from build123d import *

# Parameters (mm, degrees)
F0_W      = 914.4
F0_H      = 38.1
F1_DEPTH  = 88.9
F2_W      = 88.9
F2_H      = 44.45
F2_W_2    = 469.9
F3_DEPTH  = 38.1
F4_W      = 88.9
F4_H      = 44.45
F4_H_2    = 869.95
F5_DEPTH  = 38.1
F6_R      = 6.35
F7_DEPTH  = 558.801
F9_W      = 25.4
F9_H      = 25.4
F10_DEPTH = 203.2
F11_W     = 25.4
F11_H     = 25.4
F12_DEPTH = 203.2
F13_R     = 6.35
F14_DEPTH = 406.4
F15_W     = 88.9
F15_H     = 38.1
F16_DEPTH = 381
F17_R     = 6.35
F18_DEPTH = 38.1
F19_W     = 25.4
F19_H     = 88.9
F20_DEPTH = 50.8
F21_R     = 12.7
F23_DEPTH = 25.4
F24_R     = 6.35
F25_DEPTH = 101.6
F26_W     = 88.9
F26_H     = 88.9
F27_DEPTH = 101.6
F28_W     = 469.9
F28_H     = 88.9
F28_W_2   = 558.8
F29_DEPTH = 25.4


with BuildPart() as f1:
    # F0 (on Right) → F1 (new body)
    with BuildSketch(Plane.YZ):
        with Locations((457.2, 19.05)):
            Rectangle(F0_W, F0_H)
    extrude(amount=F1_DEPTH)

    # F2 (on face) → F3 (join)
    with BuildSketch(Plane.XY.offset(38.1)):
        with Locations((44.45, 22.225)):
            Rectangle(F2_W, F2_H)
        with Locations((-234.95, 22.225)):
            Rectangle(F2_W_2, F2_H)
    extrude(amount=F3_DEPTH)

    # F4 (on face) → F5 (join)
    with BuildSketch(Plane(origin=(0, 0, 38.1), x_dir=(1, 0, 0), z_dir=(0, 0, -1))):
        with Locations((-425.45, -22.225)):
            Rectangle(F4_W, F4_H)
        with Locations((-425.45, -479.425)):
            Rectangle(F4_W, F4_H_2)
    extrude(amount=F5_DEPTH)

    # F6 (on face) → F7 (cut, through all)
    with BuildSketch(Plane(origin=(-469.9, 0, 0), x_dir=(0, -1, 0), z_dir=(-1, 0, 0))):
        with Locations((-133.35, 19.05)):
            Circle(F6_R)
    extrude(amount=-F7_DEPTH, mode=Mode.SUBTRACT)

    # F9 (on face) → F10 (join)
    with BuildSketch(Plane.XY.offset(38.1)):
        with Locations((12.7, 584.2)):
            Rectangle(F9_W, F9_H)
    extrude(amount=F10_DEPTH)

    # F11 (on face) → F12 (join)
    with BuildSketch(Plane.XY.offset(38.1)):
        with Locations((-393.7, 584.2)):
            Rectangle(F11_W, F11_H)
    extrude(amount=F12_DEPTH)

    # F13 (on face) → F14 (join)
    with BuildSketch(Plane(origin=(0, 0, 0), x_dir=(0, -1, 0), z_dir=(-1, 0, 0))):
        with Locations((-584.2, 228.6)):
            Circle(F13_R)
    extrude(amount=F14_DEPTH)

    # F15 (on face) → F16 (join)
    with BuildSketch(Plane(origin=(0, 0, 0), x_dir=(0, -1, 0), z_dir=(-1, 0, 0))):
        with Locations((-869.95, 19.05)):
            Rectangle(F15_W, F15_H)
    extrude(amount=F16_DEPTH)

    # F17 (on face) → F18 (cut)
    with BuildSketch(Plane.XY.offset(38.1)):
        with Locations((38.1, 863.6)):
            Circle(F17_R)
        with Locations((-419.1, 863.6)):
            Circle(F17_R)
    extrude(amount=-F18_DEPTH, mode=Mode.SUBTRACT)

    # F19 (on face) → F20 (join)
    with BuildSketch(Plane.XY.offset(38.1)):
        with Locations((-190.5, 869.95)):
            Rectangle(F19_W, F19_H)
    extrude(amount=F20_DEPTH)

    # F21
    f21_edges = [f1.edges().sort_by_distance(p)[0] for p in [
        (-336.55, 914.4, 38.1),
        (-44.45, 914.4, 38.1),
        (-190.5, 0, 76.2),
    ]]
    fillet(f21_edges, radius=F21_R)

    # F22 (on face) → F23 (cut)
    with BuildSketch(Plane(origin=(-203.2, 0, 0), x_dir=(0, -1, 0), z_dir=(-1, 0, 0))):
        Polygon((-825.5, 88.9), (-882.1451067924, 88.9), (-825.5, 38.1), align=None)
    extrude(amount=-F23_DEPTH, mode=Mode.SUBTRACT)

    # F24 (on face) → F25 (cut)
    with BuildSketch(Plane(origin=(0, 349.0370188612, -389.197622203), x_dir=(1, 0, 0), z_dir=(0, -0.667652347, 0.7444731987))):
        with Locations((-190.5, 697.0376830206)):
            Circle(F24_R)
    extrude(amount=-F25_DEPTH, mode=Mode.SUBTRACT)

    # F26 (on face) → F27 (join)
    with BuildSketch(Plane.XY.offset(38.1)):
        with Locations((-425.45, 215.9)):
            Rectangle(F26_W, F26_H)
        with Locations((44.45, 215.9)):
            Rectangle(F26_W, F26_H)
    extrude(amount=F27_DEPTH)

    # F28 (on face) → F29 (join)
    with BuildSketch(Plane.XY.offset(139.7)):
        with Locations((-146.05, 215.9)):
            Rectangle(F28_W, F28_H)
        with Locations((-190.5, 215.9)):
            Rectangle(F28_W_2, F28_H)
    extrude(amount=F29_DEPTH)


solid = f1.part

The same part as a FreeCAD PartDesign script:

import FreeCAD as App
import Part
import Sketcher
Q = App.Units.Quantity


def edges_at(feature, points):
    """Names of the edges that pass closest to the given points."""
    edges = feature.Shape.Edges
    near = lambda p: min(range(len(edges)), key=lambda i: edges[i].distToShape(Part.Vertex(*p))[0])
    return sorted({f"Edge{near(p) + 1}" for p in points})

doc = App.newDocument("Part")
body = doc.addObject("PartDesign::Body", "Body")

# Sketch on YZ plane
sketch1 = body.newObject("Sketcher::SketchObject", "Sketch")
sketch1.AttachmentSupport = (doc.getObject("YZ_Plane"), [""])
sketch1.MapMode = "FlatFace"
sketch1.addGeometry(Part.LineSegment(App.Vector(0, 38, 0), App.Vector(0, 0, 0)), False)
sketch1.addGeometry(Part.LineSegment(App.Vector(0, 0, 0), App.Vector(914, 0, 0)), False)
sketch1.addGeometry(Part.LineSegment(App.Vector(914, 0, 0), App.Vector(914, 38, 0)), False)
sketch1.addGeometry(Part.LineSegment(App.Vector(914, 38, 0), App.Vector(0, 38, 0)), False)
sketch1.addConstraint(Sketcher.Constraint("Coincident", 0, 2, 1, 1))
sketch1.addConstraint(Sketcher.Constraint("Coincident", 1, 2, 2, 1))
sketch1.addConstraint(Sketcher.Constraint("Coincident", 2, 2, 3, 1))
sketch1.addConstraint(Sketcher.Constraint("Coincident", 3, 2, 0, 1))
sketch1.addConstraint(Sketcher.Constraint("Vertical", 0))
sketch1.addConstraint(Sketcher.Constraint("Horizontal", 1))
sketch1.addConstraint(Sketcher.Constraint("Vertical", 2))
sketch1.addConstraint(Sketcher.Constraint("Horizontal", 3))
sketch1.addConstraint(Sketcher.Constraint("Coincident", 0, 2, -1, 1))
sketch1.addConstraint(Sketcher.Constraint("DistanceX", 1, 1, 1, 2, Q("36 in")))
sketch1.addConstraint(Sketcher.Constraint("DistanceY", 0, 2, 0, 1, Q("1.5 in")))
pad1 = body.newObject("PartDesign::Pad", "Pad")
pad1.Profile = sketch1
pad1.Length = Q("3.5 in")

# Sketch on XY plane
sketch2 = body.newObject("Sketcher::SketchObject", "Sketch001")
sketch2.AttachmentSupport = (doc.getObject("XY_Plane"), [""])
sketch2.MapMode = "FlatFace"
sketch2.AttachmentOffset = App.Placement(App.Vector(0, 0, 1.5 * 25.4), App.Rotation())
sketch2.addGeometry(Part.LineSegment(App.Vector(89, 0, 0), App.Vector(89, 44, 0)), False)
sketch2.addGeometry(Part.LineSegment(App.Vector(89, 44, 0), App.Vector(-470, 44, 0)), False)
sketch2.addGeometry(Part.LineSegment(App.Vector(-470, 44, 0), App.Vector(-470, 0, 0)), False)
sketch2.addGeometry(Part.LineSegment(App.Vector(-470, 0, 0), App.Vector(89, 0, 0)), False)
sketch2.addConstraint(Sketcher.Constraint("Coincident", 0, 2, 1, 1))
sketch2.addConstraint(Sketcher.Constraint("Coincident", 1, 2, 2, 1))
sketch2.addConstraint(Sketcher.Constraint("Coincident", 2, 2, 3, 1))
sketch2.addConstraint(Sketcher.Constraint("Coincident", 3, 2, 0, 1))
sketch2.addConstraint(Sketcher.Constraint("Vertical", 0))
sketch2.addConstraint(Sketcher.Constraint("Horizontal", 1))
sketch2.addConstraint(Sketcher.Constraint("Vertical", 2))
sketch2.addConstraint(Sketcher.Constraint("Horizontal", 3))
sketch2.addConstraint(Sketcher.Constraint("PointOnObject", 2, 2, -1))
sketch2.addConstraint(Sketcher.Constraint("DistanceX", 1, 2, 1, 1, Q("22 in")))
sketch2.addConstraint(Sketcher.Constraint("DistanceY", 0, 1, 0, 2, Q("1.75 in")))
sketch2.addConstraint(Sketcher.Constraint("DistanceX", -1, 1, 0, 2, Q("3.5 in")))
pad2 = body.newObject("PartDesign::Pad", "Pad001")
pad2.Profile = sketch2
pad2.Length = Q("1.5 in")

# Sketch on XY plane
sketch3 = body.newObject("Sketcher::SketchObject", "Sketch002")
sketch3.AttachmentSupport = (doc.getObject("XY_Plane"), [""])
sketch3.MapMode = "FlatFace"
sketch3.AttachmentOffset = App.Placement(App.Vector(0, 0, 1.5 * 25.4), App.Rotation())
sketch3.addGeometry(Part.LineSegment(App.Vector(-470, 0, 0), App.Vector(-470, 914, 0)), False)
sketch3.addGeometry(Part.LineSegment(App.Vector(-470, 914, 0), App.Vector(-381, 914, 0)), False)
sketch3.addGeometry(Part.LineSegment(App.Vector(-381, 914, 0), App.Vector(-381, 0, 0)), False)
sketch3.addGeometry(Part.LineSegment(App.Vector(-381, 0, 0), App.Vector(-470, 0, 0)), False)
sketch3.addConstraint(Sketcher.Constraint("Coincident", 0, 2, 1, 1))
sketch3.addConstraint(Sketcher.Constraint("Coincident", 1, 2, 2, 1))
sketch3.addConstraint(Sketcher.Constraint("Coincident", 2, 2, 3, 1))
sketch3.addConstraint(Sketcher.Constraint("Coincident", 3, 2, 0, 1))
sketch3.addConstraint(Sketcher.Constraint("Vertical", 0))
sketch3.addConstraint(Sketcher.Constraint("Horizontal", 1))
sketch3.addConstraint(Sketcher.Constraint("Vertical", 2))
sketch3.addConstraint(Sketcher.Constraint("Horizontal", 3))
sketch3.addConstraint(Sketcher.Constraint("PointOnObject", 2, 2, -1))
sketch3.addConstraint(Sketcher.Constraint("DistanceY", 0, 1, 0, 2, Q("36 in")))
sketch3.addConstraint(Sketcher.Constraint("DistanceX", 1, 1, 1, 2, Q("3.5 in")))
sketch3.addConstraint(Sketcher.Constraint("DistanceX", 1, 2, -1, 1, Q("15 in")))
pad3 = body.newObject("PartDesign::Pad", "Pad002")
pad3.Profile = sketch3
pad3.Length = Q("1.5 in")
pad3.Reversed = True

# Sketch on YZ plane
sketch4 = body.newObject("Sketcher::SketchObject", "Sketch003")
sketch4.AttachmentSupport = (doc.getObject("YZ_Plane"), [""])
sketch4.MapMode = "FlatFace"
sketch4.AttachmentOffset = App.Placement(App.Vector(0, 0, -18.5 * 25.4), App.Rotation())
sketch4.addGeometry(Part.Circle(App.Vector(133, 19, 0), App.Vector(0, 0, 1), 6), False)
sketch4.addConstraint(Sketcher.Constraint("Diameter", 0, Q("0.5 in")))
sketch4.addConstraint(Sketcher.Constraint("DistanceX", -1, 1, 0, 3, Q("5.25 in")))
sketch4.addConstraint(Sketcher.Constraint("DistanceY", -1, 1, 0, 3, Q("0.75 in")))
pocket1 = body.newObject("PartDesign::Pocket", "Pocket")
pocket1.Profile = sketch4
pocket1.Type = "ThroughAll"
pocket1.Reversed = True

# Sketch on XY plane
sketch5 = body.newObject("Sketcher::SketchObject", "Sketch004")
sketch5.AttachmentSupport = (doc.getObject("XY_Plane"), [""])
sketch5.MapMode = "FlatFace"
sketch5.AttachmentOffset = App.Placement(App.Vector(0, 0, 1.5 * 25.4), App.Rotation())
sketch5.addGeometry(Part.LineSegment(App.Vector(0, 597, 0), App.Vector(0, 572, 0)), False)
sketch5.addGeometry(Part.LineSegment(App.Vector(0, 572, 0), App.Vector(25, 572, 0)), False)
sketch5.addGeometry(Part.LineSegment(App.Vector(25, 572, 0), App.Vector(25, 597, 0)), False)
sketch5.addGeometry(Part.LineSegment(App.Vector(25, 597, 0), App.Vector(0, 597, 0)), False)
sketch5.addConstraint(Sketcher.Constraint("Coincident", 0, 2, 1, 1))
sketch5.addConstraint(Sketcher.Constraint("Coincident", 1, 2, 2, 1))
sketch5.addConstraint(Sketcher.Constraint("Coincident", 2, 2, 3, 1))
sketch5.addConstraint(Sketcher.Constraint("Coincident", 3, 2, 0, 1))
sketch5.addConstraint(Sketcher.Constraint("Vertical", 0))
sketch5.addConstraint(Sketcher.Constraint("Horizontal", 1))
sketch5.addConstraint(Sketcher.Constraint("Vertical", 2))
sketch5.addConstraint(Sketcher.Constraint("Horizontal", 3))
sketch5.addConstraint(Sketcher.Constraint("PointOnObject", 0, 2, -2))
sketch5.addConstraint(Sketcher.Constraint("Equal", 3, 0))
sketch5.addConstraint(Sketcher.Constraint("DistanceX", 1, 1, 1, 2, Q("1 in")))
sketch5.addConstraint(Sketcher.Constraint("DistanceY", -1, 1, 0, 2, Q("22.5 in")))
pad4 = body.newObject("PartDesign::Pad", "Pad003")
pad4.Profile = sketch5
pad4.Length = Q("8 in")

# Sketch on XY plane
sketch6 = body.newObject("Sketcher::SketchObject", "Sketch005")
sketch6.AttachmentSupport = (doc.getObject("XY_Plane"), [""])
sketch6.MapMode = "FlatFace"
sketch6.AttachmentOffset = App.Placement(App.Vector(0, 0, 1.5 * 25.4), App.Rotation())
sketch6.addGeometry(Part.LineSegment(App.Vector(-406, 597, 0), App.Vector(-406, 572, 0)), False)
sketch6.addGeometry(Part.LineSegment(App.Vector(-406, 572, 0), App.Vector(-381, 572, 0)), False)
sketch6.addGeometry(Part.LineSegment(App.Vector(-381, 572, 0), App.Vector(-381, 597, 0)), False)
sketch6.addGeometry(Part.LineSegment(App.Vector(-381, 597, 0), App.Vector(-406, 597, 0)), False)
sketch6.addConstraint(Sketcher.Constraint("Coincident", 0, 2, 1, 1))
sketch6.addConstraint(Sketcher.Constraint("Coincident", 1, 2, 2, 1))
sketch6.addConstraint(Sketcher.Constraint("Coincident", 2, 2, 3, 1))
sketch6.addConstraint(Sketcher.Constraint("Coincident", 3, 2, 0, 1))
sketch6.addConstraint(Sketcher.Constraint("Vertical", 0))
sketch6.addConstraint(Sketcher.Constraint("Horizontal", 1))
sketch6.addConstraint(Sketcher.Constraint("Vertical", 2))
sketch6.addConstraint(Sketcher.Constraint("Horizontal", 3))
sketch6.addConstraint(Sketcher.Constraint("Equal", 3, 0))
sketch6.addConstraint(Sketcher.Constraint("DistanceX", 1, 1, 1, 2, Q("1 in")))
sketch6.addConstraint(Sketcher.Constraint("DistanceX", 0, 2, -1, 1, Q("16 in")))
sketch6.addConstraint(Sketcher.Constraint("DistanceY", -1, 1, 0, 2, Q("22.5 in")))
pad5 = body.newObject("PartDesign::Pad", "Pad004")
pad5.Profile = sketch6
pad5.Length = Q("8 in")

# Sketch on YZ plane
sketch7 = body.newObject("Sketcher::SketchObject", "Sketch006")
sketch7.AttachmentSupport = (doc.getObject("YZ_Plane"), [""])
sketch7.MapMode = "FlatFace"
sketch7.addGeometry(Part.Circle(App.Vector(584, 229, 0), App.Vector(0, 0, 1), 6), False)
sketch7.addConstraint(Sketcher.Constraint("Diameter", 0, Q("0.5 in")))
sketch7.addConstraint(Sketcher.Constraint("DistanceX", -1, 1, 0, 3, Q("23 in")))
sketch7.addConstraint(Sketcher.Constraint("DistanceY", -1, 1, 0, 3, Q("9 in")))
pad6 = body.newObject("PartDesign::Pad", "Pad005")
pad6.Profile = sketch7
pad6.Length = Q("16 in")
pad6.Reversed = True

# Sketch on YZ plane
sketch8 = body.newObject("Sketcher::SketchObject", "Sketch007")
sketch8.AttachmentSupport = (doc.getObject("YZ_Plane"), [""])
sketch8.MapMode = "FlatFace"
sketch8.addGeometry(Part.LineSegment(App.Vector(914, 38, 0), App.Vector(914, 0, 0)), False)
sketch8.addGeometry(Part.LineSegment(App.Vector(914, 0, 0), App.Vector(826, 0, 0)), False)
sketch8.addGeometry(Part.LineSegment(App.Vector(826, 0, 0), App.Vector(826, 38, 0)), False)
sketch8.addGeometry(Part.LineSegment(App.Vector(826, 38, 0), App.Vector(914, 38, 0)), False)
sketch8.addConstraint(Sketcher.Constraint("Coincident", 0, 2, 1, 1))
sketch8.addConstraint(Sketcher.Constraint("Coincident", 1, 2, 2, 1))
sketch8.addConstraint(Sketcher.Constraint("Coincident", 2, 2, 3, 1))
sketch8.addConstraint(Sketcher.Constraint("Coincident", 3, 2, 0, 1))
sketch8.addConstraint(Sketcher.Constraint("Vertical", 0))
sketch8.addConstraint(Sketcher.Constraint("Horizontal", 1))
sketch8.addConstraint(Sketcher.Constraint("Vertical", 2))
sketch8.addConstraint(Sketcher.Constraint("Horizontal", 3))
sketch8.addConstraint(Sketcher.Constraint("PointOnObject", 0, 2, -1))
sketch8.addConstraint(Sketcher.Constraint("DistanceX", 1, 2, 1, 1, Q("3.5 in")))
sketch8.addConstraint(Sketcher.Constraint("DistanceY", 0, 2, 0, 1, Q("1.5 in")))
sketch8.addConstraint(Sketcher.Constraint("DistanceX", -1, 1, 0, 2, Q("36 in")))
pad7 = body.newObject("PartDesign::Pad", "Pad006")
pad7.Profile = sketch8
pad7.Length = Q("15 in")
pad7.Reversed = True

# Sketch on XY plane
sketch9 = body.newObject("Sketcher::SketchObject", "Sketch008")
sketch9.AttachmentSupport = (doc.getObject("XY_Plane"), [""])
sketch9.MapMode = "FlatFace"
sketch9.AttachmentOffset = App.Placement(App.Vector(0, 0, 1.5 * 25.4), App.Rotation())
sketch9.addGeometry(Part.Circle(App.Vector(38, 864, 0), App.Vector(0, 0, 1), 6), False)
sketch9.addGeometry(Part.Circle(App.Vector(-419, 864, 0), App.Vector(0, 0, 1), 6), False)
sketch9.addConstraint(Sketcher.Constraint("Equal", 0, 1))
sketch9.addConstraint(Sketcher.Constraint("Horizontal", 0, 3, 1, 3))
sketch9.addConstraint(Sketcher.Constraint("Diameter", 0, Q("0.5 in")))
sketch9.addConstraint(Sketcher.Constraint("DistanceY", -1, 1, 0, 3, Q("34 in")))
sketch9.addConstraint(Sketcher.Constraint("DistanceX", 1, 3, 0, 3, Q("18 in")))
sketch9.addConstraint(Sketcher.Constraint("DistanceX", -1, 1, 0, 3, Q("1.5 in")))
pocket2 = body.newObject("PartDesign::Pocket", "Pocket001")
pocket2.Profile = sketch9
pocket2.Length = Q("1.5 in")

# Sketch on XY plane
sketch10 = body.newObject("Sketcher::SketchObject", "Sketch009")
sketch10.AttachmentSupport = (doc.getObject("XY_Plane"), [""])
sketch10.MapMode = "FlatFace"
sketch10.AttachmentOffset = App.Placement(App.Vector(0, 0, 1.5 * 25.4), App.Rotation())
sketch10.addGeometry(Part.LineSegment(App.Vector(-203, 914, 0), App.Vector(-203, 826, 0)), False)
sketch10.addGeometry(Part.LineSegment(App.Vector(-203, 826, 0), App.Vector(-178, 826, 0)), False)
sketch10.addGeometry(Part.LineSegment(App.Vector(-178, 826, 0), App.Vector(-178, 914, 0)), False)
sketch10.addGeometry(Part.LineSegment(App.Vector(-178, 914, 0), App.Vector(-203, 914, 0)), False)
sketch10.addConstraint(Sketcher.Constraint("Coincident", 0, 2, 1, 1))
sketch10.addConstraint(Sketcher.Constraint("Coincident", 1, 2, 2, 1))
sketch10.addConstraint(Sketcher.Constraint("Coincident", 2, 2, 3, 1))
sketch10.addConstraint(Sketcher.Constraint("Coincident", 3, 2, 0, 1))
sketch10.addConstraint(Sketcher.Constraint("Vertical", 0))
sketch10.addConstraint(Sketcher.Constraint("Horizontal", 1))
sketch10.addConstraint(Sketcher.Constraint("Vertical", 2))
sketch10.addConstraint(Sketcher.Constraint("Horizontal", 3))
sketch10.addConstraint(Sketcher.Constraint("DistanceX", 1, 1, 1, 2, Q("1 in")))
sketch10.addConstraint(Sketcher.Constraint("DistanceY", 0, 2, 0, 1, Q("3.5 in")))
sketch10.addConstraint(Sketcher.Constraint("DistanceX", 0, 2, -1, 1, Q("8 in")))
sketch10.addConstraint(Sketcher.Constraint("DistanceY", -1, 1, 2, 2, Q("36 in")))
pad8 = body.newObject("PartDesign::Pad", "Pad007")
pad8.Profile = sketch10
pad8.Length = Q("2 in")
doc.recompute()

fillet = body.newObject("PartDesign::Fillet", "Fillet")
fillet.Base = (pad8, edges_at(pad8, [(-336.55, 914.4, 38.1), (-44.45, 914.4, 38.1), (-190.5, 0, 76.2)]))
fillet.Radius = Q("0.5 in")

# Sketch on YZ plane
sketch11 = body.newObject("Sketcher::SketchObject", "Sketch010")
sketch11.AttachmentSupport = (doc.getObject("YZ_Plane"), [""])
sketch11.MapMode = "FlatFace"
sketch11.AttachmentOffset = App.Placement(App.Vector(0, 0, -8 * 25.4), App.Rotation())
sketch11.addGeometry(Part.LineSegment(App.Vector(826, 89, 0), App.Vector(882, 89, 0)), False)
sketch11.addGeometry(Part.LineSegment(App.Vector(882, 89, 0), App.Vector(826, 38, 0)), False)
sketch11.addGeometry(Part.LineSegment(App.Vector(826, 38, 0), App.Vector(826, 89, 0)), False)
sketch11.addConstraint(Sketcher.Constraint("Coincident", 0, 2, 1, 1))
sketch11.addConstraint(Sketcher.Constraint("Coincident", 1, 2, 2, 1))
sketch11.addConstraint(Sketcher.Constraint("Coincident", 2, 2, 0, 1))
sketch11.addConstraint(Sketcher.Constraint("Horizontal", 0))
sketch11.addConstraint(Sketcher.Constraint("Vertical", 2))
sketch11.addConstraint(Sketcher.Constraint("DistanceY", 2, 1, 2, 2, Q("2 in")))
sketch11.addConstraint(Sketcher.Constraint("DistanceY", -1, 1, 0, 2, Q("3.5 in")))
sketch11.addConstraint(Sketcher.Constraint("DistanceX", -1, 1, 1, 2, Q("32.5 in")))
sketch11.addConstraint(Sketcher.Constraint("DistanceX", 0, 1, 0, 2, Q("56.645107 mm")))
pocket3 = body.newObject("PartDesign::Pocket", "Pocket002")
pocket3.Profile = sketch11
pocket3.Length = Q("1 in")
pocket3.Reversed = True

# Sketch on an angled plane
sketch12 = body.newObject("Sketcher::SketchObject", "Sketch011")
sketch12.Placement = App.Placement(App.Vector(0, 349.037019, -389.197622), App.Rotation(App.Vector(1, 0, 0), App.Vector(0, 0.744473199, 0.667652347), App.Vector(0, -0.667652347, 0.744473199), "ZXY"))
sketch12.addGeometry(Part.Circle(App.Vector(-190, 697, 0), App.Vector(0, 0, 1), 6), False)
sketch12.addConstraint(Sketcher.Constraint("Diameter", 0, Q("0.5 in")))
sketch12.addConstraint(Sketcher.Constraint("DistanceX", 0, 3, -1, 1, Q("7.5 in")))
sketch12.addConstraint(Sketcher.Constraint("DistanceY", -1, 1, 0, 3, Q("697.037683 mm")))
pocket4 = body.newObject("PartDesign::Pocket", "Pocket003")
pocket4.Profile = sketch12
pocket4.Length = Q("4 in")

# Sketch on XY plane
sketch13 = body.newObject("Sketcher::SketchObject", "Sketch012")
sketch13.AttachmentSupport = (doc.getObject("XY_Plane"), [""])
sketch13.MapMode = "FlatFace"
sketch13.AttachmentOffset = App.Placement(App.Vector(0, 0, 1.5 * 25.4), App.Rotation())
sketch13.addGeometry(Part.LineSegment(App.Vector(-470, 260, 0), App.Vector(-470, 171, 0)), False)
sketch13.addGeometry(Part.LineSegment(App.Vector(-470, 171, 0), App.Vector(-381, 171, 0)), False)
sketch13.addGeometry(Part.LineSegment(App.Vector(-381, 171, 0), App.Vector(-381, 260, 0)), False)
sketch13.addGeometry(Part.LineSegment(App.Vector(-381, 260, 0), App.Vector(-470, 260, 0)), False)
sketch13.addGeometry(Part.LineSegment(App.Vector(0, 260, 0), App.Vector(0, 171, 0)), False)
sketch13.addGeometry(Part.LineSegment(App.Vector(0, 171, 0), App.Vector(89, 171, 0)), False)
sketch13.addGeometry(Part.LineSegment(App.Vector(89, 171, 0), App.Vector(89, 260, 0)), False)
sketch13.addGeometry(Part.LineSegment(App.Vector(89, 260, 0), App.Vector(0, 260, 0)), False)
sketch13.addConstraint(Sketcher.Constraint("Coincident", 0, 2, 1, 1))
sketch13.addConstraint(Sketcher.Constraint("Coincident", 1, 2, 2, 1))
sketch13.addConstraint(Sketcher.Constraint("Coincident", 2, 2, 3, 1))
sketch13.addConstraint(Sketcher.Constraint("Coincident", 3, 2, 0, 1))
sketch13.addConstraint(Sketcher.Constraint("Coincident", 4, 2, 5, 1))
sketch13.addConstraint(Sketcher.Constraint("Coincident", 5, 2, 6, 1))
sketch13.addConstraint(Sketcher.Constraint("Coincident", 6, 2, 7, 1))
sketch13.addConstraint(Sketcher.Constraint("Coincident", 7, 2, 4, 1))
sketch13.addConstraint(Sketcher.Constraint("Vertical", 0))
sketch13.addConstraint(Sketcher.Constraint("Horizontal", 1))
sketch13.addConstraint(Sketcher.Constraint("Vertical", 2))
sketch13.addConstraint(Sketcher.Constraint("Horizontal", 3))
sketch13.addConstraint(Sketcher.Constraint("Vertical", 4))
sketch13.addConstraint(Sketcher.Constraint("Horizontal", 5))
sketch13.addConstraint(Sketcher.Constraint("Vertical", 6))
sketch13.addConstraint(Sketcher.Constraint("Horizontal", 7))
sketch13.addConstraint(Sketcher.Constraint("PointOnObject", 4, 2, -2))
sketch13.addConstraint(Sketcher.Constraint("Horizontal", 1, 2, 4, 2))
sketch13.addConstraint(Sketcher.Constraint("Horizontal", 3, 2, 6, 2))
sketch13.addConstraint(Sketcher.Constraint("Equal", 3, 5))
sketch13.addConstraint(Sketcher.Constraint("Equal", 7, 0))
sketch13.addConstraint(Sketcher.Constraint("DistanceX", 1, 1, 1, 2, Q("3.5 in")))
sketch13.addConstraint(Sketcher.Constraint("DistanceX", 1, 2, -1, 1, Q("15 in")))
sketch13.addConstraint(Sketcher.Constraint("DistanceY", -1, 1, 0, 2, Q("6.75 in")))
pad9 = body.newObject("PartDesign::Pad", "Pad008")
pad9.Profile = sketch13
pad9.Length = Q("4 in")

# Sketch on XY plane
sketch14 = body.newObject("Sketcher::SketchObject", "Sketch013")
sketch14.AttachmentSupport = (doc.getObject("XY_Plane"), [""])
sketch14.MapMode = "FlatFace"
sketch14.AttachmentOffset = App.Placement(App.Vector(0, 0, 5.5 * 25.4), App.Rotation())
sketch14.addGeometry(Part.LineSegment(App.Vector(89, 171, 0), App.Vector(89, 260, 0)), False)
sketch14.addGeometry(Part.LineSegment(App.Vector(89, 260, 0), App.Vector(-470, 260, 0)), False)
sketch14.addGeometry(Part.LineSegment(App.Vector(-470, 260, 0), App.Vector(-470, 171, 0)), False)
sketch14.addGeometry(Part.LineSegment(App.Vector(-470, 171, 0), App.Vector(89, 171, 0)), False)
sketch14.addConstraint(Sketcher.Constraint("Coincident", 0, 2, 1, 1))
sketch14.addConstraint(Sketcher.Constraint("Coincident", 1, 2, 2, 1))
sketch14.addConstraint(Sketcher.Constraint("Coincident", 2, 2, 3, 1))
sketch14.addConstraint(Sketcher.Constraint("Coincident", 3, 2, 0, 1))
sketch14.addConstraint(Sketcher.Constraint("Vertical", 0))
sketch14.addConstraint(Sketcher.Constraint("Horizontal", 1))
sketch14.addConstraint(Sketcher.Constraint("Vertical", 2))
sketch14.addConstraint(Sketcher.Constraint("Horizontal", 3))
sketch14.addConstraint(Sketcher.Constraint("DistanceX", 1, 2, 1, 1, Q("22 in")))
sketch14.addConstraint(Sketcher.Constraint("DistanceY", 0, 1, 0, 2, Q("3.5 in")))
sketch14.addConstraint(Sketcher.Constraint("DistanceX", -1, 1, 0, 2, Q("3.5 in")))
sketch14.addConstraint(Sketcher.Constraint("DistanceY", -1, 1, 0, 2, Q("10.25 in")))
pad10 = body.newObject("PartDesign::Pad", "Pad009")
pad10.Profile = sketch14
pad10.Length = Q("1 in")

doc.recompute()
